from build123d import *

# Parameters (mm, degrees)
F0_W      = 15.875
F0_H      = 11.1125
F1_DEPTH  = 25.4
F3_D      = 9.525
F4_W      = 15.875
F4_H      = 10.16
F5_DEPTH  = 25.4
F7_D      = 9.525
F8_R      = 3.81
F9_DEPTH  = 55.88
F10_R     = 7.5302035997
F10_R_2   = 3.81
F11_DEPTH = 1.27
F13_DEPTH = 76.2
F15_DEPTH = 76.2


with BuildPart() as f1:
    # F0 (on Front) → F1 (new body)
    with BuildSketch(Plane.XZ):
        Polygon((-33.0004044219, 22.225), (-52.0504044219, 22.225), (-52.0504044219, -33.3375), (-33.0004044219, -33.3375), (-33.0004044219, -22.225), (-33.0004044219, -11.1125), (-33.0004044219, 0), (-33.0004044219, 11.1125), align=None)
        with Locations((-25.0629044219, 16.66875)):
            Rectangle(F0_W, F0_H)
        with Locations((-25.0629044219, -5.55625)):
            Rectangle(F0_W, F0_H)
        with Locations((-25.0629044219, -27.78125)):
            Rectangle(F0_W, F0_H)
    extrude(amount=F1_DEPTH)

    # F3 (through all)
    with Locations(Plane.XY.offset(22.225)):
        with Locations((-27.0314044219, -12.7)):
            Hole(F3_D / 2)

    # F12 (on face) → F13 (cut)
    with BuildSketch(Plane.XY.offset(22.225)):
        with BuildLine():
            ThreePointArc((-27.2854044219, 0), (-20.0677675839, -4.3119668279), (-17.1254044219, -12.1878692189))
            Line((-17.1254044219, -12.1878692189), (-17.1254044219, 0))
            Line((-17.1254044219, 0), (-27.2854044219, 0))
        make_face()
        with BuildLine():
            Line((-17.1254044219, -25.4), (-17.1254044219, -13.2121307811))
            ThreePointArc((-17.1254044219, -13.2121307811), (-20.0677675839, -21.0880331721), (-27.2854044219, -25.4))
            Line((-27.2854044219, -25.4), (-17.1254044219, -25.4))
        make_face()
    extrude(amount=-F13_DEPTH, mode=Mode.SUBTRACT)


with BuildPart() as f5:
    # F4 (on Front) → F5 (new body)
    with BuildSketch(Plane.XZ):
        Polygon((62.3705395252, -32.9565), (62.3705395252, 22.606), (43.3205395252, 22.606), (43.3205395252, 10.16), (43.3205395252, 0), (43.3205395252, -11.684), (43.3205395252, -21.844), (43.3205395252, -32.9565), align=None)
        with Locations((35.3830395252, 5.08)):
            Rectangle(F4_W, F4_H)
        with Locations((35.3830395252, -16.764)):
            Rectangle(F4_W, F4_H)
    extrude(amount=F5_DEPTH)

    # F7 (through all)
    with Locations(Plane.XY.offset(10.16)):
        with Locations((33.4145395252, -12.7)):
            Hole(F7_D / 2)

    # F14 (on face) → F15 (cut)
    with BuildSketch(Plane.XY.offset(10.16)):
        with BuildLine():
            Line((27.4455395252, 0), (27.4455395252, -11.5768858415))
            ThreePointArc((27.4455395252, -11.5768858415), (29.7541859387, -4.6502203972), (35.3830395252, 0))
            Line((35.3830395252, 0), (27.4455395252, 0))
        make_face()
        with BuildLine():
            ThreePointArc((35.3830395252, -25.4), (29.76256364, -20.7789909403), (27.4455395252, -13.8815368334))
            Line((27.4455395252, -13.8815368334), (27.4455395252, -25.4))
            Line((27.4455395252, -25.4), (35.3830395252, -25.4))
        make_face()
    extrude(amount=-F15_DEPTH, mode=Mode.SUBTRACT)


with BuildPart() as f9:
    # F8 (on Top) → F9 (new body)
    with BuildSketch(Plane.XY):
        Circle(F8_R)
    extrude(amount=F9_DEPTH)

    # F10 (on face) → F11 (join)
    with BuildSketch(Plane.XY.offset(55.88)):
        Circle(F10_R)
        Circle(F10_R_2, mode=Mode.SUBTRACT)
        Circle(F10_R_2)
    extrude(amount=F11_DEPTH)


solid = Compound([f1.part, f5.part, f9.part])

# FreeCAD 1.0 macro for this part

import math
import FreeCAD as App
import Part
import Sketcher

V = App.Vector
Q = App.Units.Quantity

doc = App.newDocument("Part")
params = doc.addObject("Spreadsheet::Sheet", "Params")
for row, (alias, value) in enumerate([
    ("sketch1_width", "1.375 in"),
    ("sketch1_width2", "0.625 in"),
    ("sketch1_height", "2.1875 in"),
    ("pad1_length", "1 in"),
    ("sketch2_diameter", "0.375 in"),
    ("hole_diameter", "0.375 in"),
    ("sketch3_radius", "0.5 in"),
    ("sketch3_width", "0.4 in"),
    ("pocket1_length", "3 in"),
    ("sketch4_height", "0.4 in"),
    ("sketch4_width", "0.75 in"),
    ("sketch4_height2", "0.49 in"),
    ("sketch4_height3", "0.46 in"),
    ("sketch4_width2", "0.625 in"),
    ("pad2_length", "1 in"),
    ("sketch5_diameter", "0.375 in"),
    ("hole2_diameter", "0.375 in"),
    ("sketch6_width", "0.3125 in"),
    ("pocket2_length", "3 in"),
    ("sketch7_diameter", "0.3 in"),
    ("pad3_length", "2.2 in"),
    ("pad4_length", "0.05 in"),
], start=1):
    params.set(f"A{row}", alias)
    params.set(f"B{row}", "=" + value)
    params.setAlias(f"B{row}", alias)

body = doc.addObject("PartDesign::Body", "Body")

# Sketch on XZ plane
sketch1 = doc.addObject("Sketcher::SketchObject", "Sketch")
body.addObject(sketch1)
sketch1.AttachmentSupport = (doc.XZ_Plane, [""])
sketch1.MapMode = "FlatFace"
sketch1.addGeometry(Part.LineSegment(V(-52, 22, 0), V(-52, -33, 0)), False)
sketch1.addGeometry(Part.LineSegment(V(-52, -33, 0), V(-17, -33, 0)), False)
sketch1.addGeometry(Part.LineSegment(V(-17, -33, 0), V(-17, -22, 0)), False)
sketch1.addGeometry(Part.LineSegment(V(-17, -22, 0), V(-33, -22, 0)), False)
sketch1.addGeometry(Part.LineSegment(V(-33, -22, 0), V(-33, -11, 0)), False)
sketch1.addGeometry(Part.LineSegment(V(-33, -11, 0), V(-17, -11, 0)), False)
sketch1.addGeometry(Part.LineSegment(V(-17, -11, 0), V(-17, 0, 0)), False)
sketch1.addGeometry(Part.LineSegment(V(-17, 0, 0), V(-33, 0, 0)), False)
sketch1.addGeometry(Part.LineSegment(V(-33, 0, 0), V(-33, 11, 0)), False)
sketch1.addGeometry(Part.LineSegment(V(-33, 11, 0), V(-17, 11, 0)), False)
sketch1.addGeometry(Part.LineSegment(V(-17, 11, 0), V(-17, 22, 0)), False)
sketch1.addGeometry(Part.LineSegment(V(-17, 22, 0), V(-52, 22, 0)), False)
sketch1.addConstraint(Sketcher.Constraint("Coincident", 0, 2, 1, 1))
sketch1.addConstraint(Sketcher.Constraint("Coincident", 1, 2, 2, 1))
sketch1.addConstraint(Sketcher.Constraint("Coincident", 2, 2, 3, 1))
sketch1.addConstraint(Sketcher.Constraint("Coincident", 3, 2, 4, 1))
sketch1.addConstraint(Sketcher.Constraint("Coincident", 4, 2, 5, 1))
sketch1.addConstraint(Sketcher.Constraint("Coincident", 5, 2, 6, 1))
sketch1.addConstraint(Sketcher.Constraint("Coincident", 6, 2, 7, 1))
sketch1.addConstraint(Sketcher.Constraint("Coincident", 7, 2, 8, 1))
sketch1.addConstraint(Sketcher.Constraint("Coincident", 8, 2, 9, 1))
sketch1.addConstraint(Sketcher.Constraint("Coincident", 9, 2, 10, 1))
sketch1.addConstraint(Sketcher.Constraint("Coincident", 10, 2, 11, 1))
sketch1.addConstraint(Sketcher.Constraint("Coincident", 11, 2, 0, 1))
sketch1.addConstraint(Sketcher.Constraint("Vertical", 0))
sketch1.addConstraint(Sketcher.Constraint("Horizontal", 1))
sketch1.addConstraint(Sketcher.Constraint("Vertical", 2))
sketch1.addConstraint(Sketcher.Constraint("Horizontal", 3))
sketch1.addConstraint(Sketcher.Constraint("Vertical", 4))
sketch1.addConstraint(Sketcher.Constraint("Horizontal", 5))
sketch1.addConstraint(Sketcher.Constraint("Vertical", 6))
sketch1.addConstraint(Sketcher.Constraint("Horizontal", 7))
sketch1.addConstraint(Sketcher.Constraint("Vertical", 8))
sketch1.addConstraint(Sketcher.Constraint("Horizontal", 9))
sketch1.addConstraint(Sketcher.Constraint("Vertical", 10))
sketch1.addConstraint(Sketcher.Constraint("Horizontal", 11))
sketch1.addConstraint(Sketcher.Constraint("Symmetric", 4, 2, 8, 2, -1))
sketch1.addConstraint(Sketcher.Constraint("Symmetric", 2, 2, 10, 2, -1))
sketch1.addConstraint(Sketcher.Constraint("PointOnObject", 6, 2, -1))
sketch1.addConstraint(Sketcher.Constraint("Vertical", 2, 2, 5, 2))
sketch1.addConstraint(Sketcher.Constraint("Equal", 2, 4))
sketch1.addConstraint(Sketcher.Constraint("Equal", 4, 6))
sketch1.addConstraint(Sketcher.Constraint("DistanceX", 1, 1, 1, 2, Q("1.375 in")))
sketch1.addConstraint(Sketcher.Constraint("DistanceX", 3, 2, 3, 1, Q("0.625 in")))
sketch1.addConstraint(Sketcher.Constraint("DistanceY", 0, 2, 0, 1, Q("2.1875 in")))
sketch1.addConstraint(Sketcher.Constraint("DistanceX", 0, 2, -1, 1, 52.050404))
sketch1.setExpression("Constraints[30]", "Params.sketch1_width")
sketch1.setExpression("Constraints[31]", "Params.sketch1_width2")
sketch1.setExpression("Constraints[32]", "Params.sketch1_height")
pad1 = doc.addObject("PartDesign::Pad", "Pad")
body.addObject(pad1)
pad1.Profile = sketch1
pad1.setExpression("Length", "Params.pad1_length")

# Sketch on XY plane
sketch2 = doc.addObject("Sketcher::SketchObject", "Sketch001")
body.addObject(sketch2)
sketch2.AttachmentSupport = (doc.XY_Plane, [""])
sketch2.MapMode = "FlatFace"
sketch2.AttachmentOffset = App.Placement(V(0, 0, 0.875 * 25.4), App.Rotation())
sketch2.addGeometry(Part.Circle(V(-27, -12.7, 0), V(0, 0, 1), 4.8), False)
sketch2.addConstraint(Sketcher.Constraint("Diameter", 0, Q("0.375 in")))
sketch2.addConstraint(Sketcher.Constraint("DistanceY", 0, 3, -1, 1, Q("0.5 in")))
sketch2.addConstraint(Sketcher.Constraint("DistanceX", 0, 3, -1, 1, 27.031404))
sketch2.setExpression("Constraints[0]", "Params.sketch2_diameter")
doc.recompute()
hole = doc.addObject("PartDesign::Hole", "Hole")
body.addObject(hole)
hole.Profile = sketch2
hole.ThreadType = "None"
hole.setExpression("Diameter", "Params.hole_diameter")
hole.DepthType = "ThroughAll"

# Sketch on XY plane
sketch3 = doc.addObject("Sketcher::SketchObject", "Sketch002")
body.addObject(sketch3)
sketch3.AttachmentSupport = (doc.XY_Plane, [""])
sketch3.MapMode = "FlatFace"
sketch3.AttachmentOffset = App.Placement(V(0, 0, 0.875 * 25.4), App.Rotation())
sketch3.addGeometry(Part.ArcOfCircle(Part.Circle(V(-29.822823, -12.443935, 0), V(0, 0, 1), 12.7), math.radians(1.155312), math.radians(78.474928)), False)
sketch3.addGeometry(Part.LineSegment(V(-17.125404, -12.187869, 0), V(-17.125404, 0, 0)), False)
sketch3.addGeometry(Part.LineSegment(V(-17.125404, 0, 0), V(-27.285404, 0, 0)), False)
sketch3.addGeometry(Part.LineSegment(V(-17.125404, -25.4, 0), V(-17.125404, -13.212131, 0)), False)
sketch3.addGeometry(Part.ArcOfCircle(Part.Circle(V(-29.822823, -12.956065, 0), V(0, 0, 1), 12.7), math.radians(-78.474928), math.radians(-1.155312)), False)
sketch3.addGeometry(Part.LineSegment(V(-27.285404, -25.4, 0), V(-17.125404, -25.4, 0)), False)
sketch3.addConstraint(Sketcher.Constraint("Coincident", 0, 1, 1, 1))
sketch3.addConstraint(Sketcher.Constraint("Coincident", 1, 2, 2, 1))
sketch3.addConstraint(Sketcher.Constraint("Coincident", 2, 2, 0, 2))
sketch3.addConstraint(Sketcher.Constraint("Coincident", 3, 2, 4, 2))
sketch3.addConstraint(Sketcher.Constraint("Coincident", 4, 1, 5, 1))
sketch3.addConstraint(Sketcher.Constraint("Coincident", 5, 2, 3, 1))
sketch3.addConstraint(Sketcher.Constraint("Vertical", 1))
sketch3.addConstraint(Sketcher.Constraint("Horizontal", 2))
sketch3.addConstraint(Sketcher.Constraint("Vertical", 3))
sketch3.addConstraint(Sketcher.Constraint("Horizontal", 5))
sketch3.addConstraint(Sketcher.Constraint("Equal", 0, 4))
sketch3.addConstraint(Sketcher.Constraint("PointOnObject", 1, 2, -1))
sketch3.addConstraint(Sketcher.Constraint("Vertical", 0, 3, 4, 3))
sketch3.addConstraint(Sketcher.Constraint("Vertical", 1, 2, 3, 2))
sketch3.addConstraint(Sketcher.Constraint("Vertical", 2, 2, 4, 1))
sketch3.addConstraint(Sketcher.Constraint("Radius", 0, Q("0.5 in")))
sketch3.addConstraint(Sketcher.Constraint("DistanceX", 2, 2, 2, 1, Q("0.4 in")))
sketch3.addConstraint(Sketcher.Constraint("DistanceY", 4, 1, -1, 1, Q("1 in")))
sketch3.addConstraint(Sketcher.Constraint("DistanceY", 1, 1, 1, 2, 12.187869))
sketch3.addConstraint(Sketcher.Constraint("DistanceX", 0, 3, -1, 1, 29.822823))
sketch3.setExpression("Constraints[15]", "Params.sketch3_radius")
sketch3.setExpression("Constraints[16]", "Params.sketch3_width")
pocket1 = doc.addObject("PartDesign::Pocket", "Pocket")
body.addObject(pocket1)
pocket1.Profile = sketch3
pocket1.setExpression("Length", "Params.pocket1_length")
body2 = doc.addObject("PartDesign::Body", "Body001")

# Sketch on XZ plane
sketch4 = doc.addObject("Sketcher::SketchObject", "Sketch003")
body2.addObject(sketch4)
sketch4.AttachmentSupport = (doc.getObject("XZ_Plane001"), [""])
sketch4.MapMode = "FlatFace"
sketch4.addGeometry(Part.LineSegment(V(62, -33, 0), V(62, 23, 0)), False)
sketch4.addGeometry(Part.LineSegment(V(62, 23, 0), V(43, 23, 0)), False)
sketch4.addGeometry(Part.LineSegment(V(43, 23, 0), V(43, 10, 0)), False)
sketch4.addGeometry(Part.LineSegment(V(43, 10, 0), V(27, 10, 0)), False)
sketch4.addGeometry(Part.LineSegment(V(27, 10, 0), V(27, 0, 0)), False)
sketch4.addGeometry(Part.LineSegment(V(27, 0, 0), V(43, 0, 0)), False)
sketch4.addGeometry(Part.LineSegment(V(43, 0, 0), V(43, -12, 0)), False)
sketch4.addGeometry(Part.LineSegment(V(43, -12, 0), V(27, -12, 0)), False)
sketch4.addGeometry(Part.LineSegment(V(27, -12, 0), V(27, -22, 0)), False)
sketch4.addGeometry(Part.LineSegment(V(27, -22, 0), V(43, -22, 0)), False)
sketch4.addGeometry(Part.LineSegment(V(43, -22, 0), V(43, -33, 0)), False)
sketch4.addGeometry(Part.LineSegment(V(43, -33, 0), V(62, -33, 0)), False)
sketch4.addConstraint(Sketcher.Constraint("Coincident", 0, 2, 1, 1))
sketch4.addConstraint(Sketcher.Constraint("Coincident", 1, 2, 2, 1))
sketch4.addConstraint(Sketcher.Constraint("Coincident", 2, 2, 3, 1))
sketch4.addConstraint(Sketcher.Constraint("Coincident", 3, 2, 4, 1))
sketch4.addConstraint(Sketcher.Constraint("Coincident", 4, 2, 5, 1))
sketch4.addConstraint(Sketcher.Constraint("Coincident", 5, 2, 6, 1))
sketch4.addConstraint(Sketcher.Constraint("Coincident", 6, 2, 7, 1))
sketch4.addConstraint(Sketcher.Constraint("Coincident", 7, 2, 8, 1))
sketch4.addConstraint(Sketcher.Constraint("Coincident", 8, 2, 9, 1))
sketch4.addConstraint(Sketcher.Constraint("Coincident", 9, 2, 10, 1))
sketch4.addConstraint(Sketcher.Constraint("Coincident", 10, 2, 11, 1))
sketch4.addConstraint(Sketcher.Constraint("Coincident", 11, 2, 0, 1))
sketch4.addConstraint(Sketcher.Constraint("Vertical", 0))
sketch4.addConstraint(Sketcher.Constraint("Horizontal", 1))
sketch4.addConstraint(Sketcher.Constraint("Vertical", 2))
sketch4.addConstraint(Sketcher.Constraint("Horizontal", 3))
sketch4.addConstraint(Sketcher.Constraint("Vertical", 4))
sketch4.addConstraint(Sketcher.Constraint("Horizontal", 5))
sketch4.addConstraint(Sketcher.Constraint("Vertical", 6))
sketch4.addConstraint(Sketcher.Constraint("Horizontal", 7))
sketch4.addConstraint(Sketcher.Constraint("Vertical", 8))
sketch4.addConstraint(Sketcher.Constraint("Horizontal", 9))
sketch4.addConstraint(Sketcher.Constraint("Vertical", 10))
sketch4.addConstraint(Sketcher.Constraint("Horizontal", 11))
sketch4.addConstraint(Sketcher.Constraint("PointOnObject", 4, 2, -1))
sketch4.addConstraint(Sketcher.Constraint("Vertical", 2, 2, 5, 2))
sketch4.addConstraint(Sketcher.Constraint("Vertical", 4, 2, 7, 2))
sketch4.addConstraint(Sketcher.Constraint("Vertical", 6, 2, 9, 2))
sketch4.addConstraint(Sketcher.Constraint("Equal", 4, 8))
sketch4.addConstraint(Sketcher.Constraint("DistanceY", 4, 2, 4, 1, Q("0.4 in")))
sketch4.addConstraint(Sketcher.Constraint("DistanceX", 1, 2, 1, 1, Q("0.75 in")))
sketch4.addConstraint(Sketcher.Constraint("DistanceY", 2, 2, 2, 1, Q("0.49 in")))
sketch4.addConstraint(Sketcher.Constraint("DistanceY", 6, 2, 6, 1, Q("0.46 in")))
sketch4.addConstraint(Sketcher.Constraint("DistanceX", 3, 2, 3, 1, Q("0.625 in")))
sketch4.addConstraint(Sketcher.Constraint("DistanceY", 0, 1, 0, 2, Q("2.1875 in")))
sketch4.addConstraint(Sketcher.Constraint("DistanceX", -1, 1, 0, 2, 62.37054))
sketch4.setExpression("Constraints[29]", "Params.sketch4_height")
sketch4.setExpression("Constraints[30]", "Params.sketch4_width")
sketch4.setExpression("Constraints[31]", "Params.sketch4_height2")
sketch4.setExpression("Constraints[32]", "Params.sketch4_height3")
sketch4.setExpression("Constraints[33]", "Params.sketch4_width2")
pad2 = doc.addObject("PartDesign::Pad", "Pad001")
body2.addObject(pad2)
pad2.Profile = sketch4
pad2.setExpression("Length", "Params.pad2_length")

# Sketch on XY plane
sketch5 = doc.addObject("Sketcher::SketchObject", "Sketch004")
body2.addObject(sketch5)
sketch5.AttachmentSupport = (doc.getObject("XY_Plane001"), [""])
sketch5.MapMode = "FlatFace"
sketch5.AttachmentOffset = App.Placement(V(0, 0, 0.4 * 25.4), App.Rotation())
sketch5.addGeometry(Part.Circle(V(33.4, -12.7, 0), V(0, 0, 1), 4.8), False)
sketch5.addConstraint(Sketcher.Constraint("Diameter", 0, Q("0.375 in")))
sketch5.addConstraint(Sketcher.Constraint("DistanceY", 0, 3, -1, 1, Q("0.5 in")))
sketch5.addConstraint(Sketcher.Constraint("DistanceX", -1, 1, 0, 3, 33.41454))
sketch5.setExpression("Constraints[0]", "Params.sketch5_diameter")
doc.recompute()
hole2 = doc.addObject("PartDesign::Hole", "Hole001")
body2.addObject(hole2)
hole2.Profile = sketch5
hole2.ThreadType = "None"
hole2.setExpression("Diameter", "Params.hole2_diameter")
hole2.DepthType = "ThroughAll"

# Sketch on XY plane
sketch6 = doc.addObject("Sketcher::SketchObject", "Sketch005")
body2.addObject(sketch6)
sketch6.AttachmentSupport = (doc.getObject("XY_Plane001"), [""])
sketch6.MapMode = "FlatFace"
sketch6.AttachmentOffset = App.Placement(V(0, 0, 0.4 * 25.4), App.Rotation())
sketch6.addGeometry(Part.LineSegment(V(27, 0, 0), V(27, -12, 0)), False)
sketch6.addGeometry(Part.ArcOfCircle(Part.Circle(V(41, -12, 0), V(0, 0, 1), 13), math.radians(114), math.radians(178)), False)
sketch6.addGeometry(Part.LineSegment(V(35, 0, 0), V(27, 0, 0)), False)
sketch6.addGeometry(Part.ArcOfCircle(Part.Circle(V(41, -13, 0), V(0, 0, 1), 13), math.radians(-177), math.radians(-113)), False)
sketch6.addGeometry(Part.LineSegment(V(27, -14, 0), V(27, -25, 0)), False)
sketch6.addGeometry(Part.LineSegment(V(27, -25, 0), V(35, -25, 0)), False)
sketch6.addConstraint(Sketcher.Constraint("Coincident", 0, 2, 1, 2))
sketch6.addConstraint(Sketcher.Constraint("Coincident", 1, 1, 2, 1))
sketch6.addConstraint(Sketcher.Constraint("Coincident", 2, 2, 0, 1))
sketch6.addConstraint(Sketcher.Constraint("Coincident", 3, 1, 4, 1))
sketch6.addConstraint(Sketcher.Constraint("Coincident", 4, 2, 5, 1))
sketch6.addConstraint(Sketcher.Constraint("Coincident", 5, 2, 3, 2))
sketch6.addConstraint(Sketcher.Constraint("Vertical", 0))
sketch6.addConstraint(Sketcher.Constraint("Horizontal", 2))
sketch6.addConstraint(Sketcher.Constraint("Vertical", 4))
sketch6.addConstraint(Sketcher.Constraint("Horizontal", 5))
sketch6.addConstraint(Sketcher.Constraint("PointOnObject", 1, 1, -1))
sketch6.addConstraint(Sketcher.Constraint("Vertical", 2, 2, 3, 1))
sketch6.addConstraint(Sketcher.Constraint("Vertical", 1, 1, 5, 2))
sketch6.addConstraint(Sketcher.Constraint("DistanceY", 4, 2, -1, 1, Q("1 in")))
sketch6.addConstraint(Sketcher.Constraint("DistanceX", 2, 2, 2, 1, Q("0.3125 in")))
sketch6.addConstraint(Sketcher.Constraint("Radius", 1, 13.242171))
sketch6.addConstraint(Sketcher.Constraint("Radius", 3, 13.19675))
sketch6.addConstraint(Sketcher.Constraint("DistanceX", -1, 1, 1, 3, 40.675798))
sketch6.addConstraint(Sketcher.Constraint("DistanceY", 0, 2, 0, 1, 11.576886))
sketch6.addConstraint(Sketcher.Constraint("DistanceY", 4, 2, 4, 1, 11.518463))
sketch6.setExpression("Constraints[14]", "Params.sketch6_width")
pocket2 = doc.addObject("PartDesign::Pocket", "Pocket001")
body2.addObject(pocket2)
pocket2.Profile = sketch6
pocket2.setExpression("Length", "Params.pocket2_length")
body3 = doc.addObject("PartDesign::Body", "Body002")

# Sketch on XY plane
sketch7 = doc.addObject("Sketcher::SketchObject", "Sketch006")
body3.addObject(sketch7)
sketch7.AttachmentSupport = (doc.getObject("XY_Plane002"), [""])
sketch7.MapMode = "FlatFace"
sketch7.addGeometry(Part.Circle(V(0, 0, 0), V(0, 0, 1), 3.8), False)
sketch7.addConstraint(Sketcher.Constraint("Coincident", 0, 3, -1, 1))
sketch7.addConstraint(Sketcher.Constraint("Diameter", 0, Q("0.3 in")))
sketch7.setExpression("Constraints[1]", "Params.sketch7_diameter")
pad3 = doc.addObject("PartDesign::Pad", "Pad002")
body3.addObject(pad3)
pad3.Profile = sketch7
pad3.setExpression("Length", "Params.pad3_length")

# Sketch on XY plane
sketch8 = doc.addObject("Sketcher::SketchObject", "Sketch007")
body3.addObject(sketch8)
sketch8.AttachmentSupport = (doc.getObject("XY_Plane002"), [""])
sketch8.MapMode = "FlatFace"
sketch8.AttachmentOffset = App.Placement(V(0, 0, 2.2 * 25.4), App.Rotation())
sketch8.addGeometry(Part.Circle(V(0, 0, 0), V(0, 0, 1), 8), False)
sketch8.addConstraint(Sketcher.Constraint("Coincident", 0, 3, -1, 1))
sketch8.addConstraint(Sketcher.Constraint("Diameter", 0, 15.060407))
pad4 = doc.addObject("PartDesign::Pad", "Pad003")
body3.addObject(pad4)
pad4.Profile = sketch8
pad4.setExpression("Length", "Params.pad4_length")

doc.recompute()
